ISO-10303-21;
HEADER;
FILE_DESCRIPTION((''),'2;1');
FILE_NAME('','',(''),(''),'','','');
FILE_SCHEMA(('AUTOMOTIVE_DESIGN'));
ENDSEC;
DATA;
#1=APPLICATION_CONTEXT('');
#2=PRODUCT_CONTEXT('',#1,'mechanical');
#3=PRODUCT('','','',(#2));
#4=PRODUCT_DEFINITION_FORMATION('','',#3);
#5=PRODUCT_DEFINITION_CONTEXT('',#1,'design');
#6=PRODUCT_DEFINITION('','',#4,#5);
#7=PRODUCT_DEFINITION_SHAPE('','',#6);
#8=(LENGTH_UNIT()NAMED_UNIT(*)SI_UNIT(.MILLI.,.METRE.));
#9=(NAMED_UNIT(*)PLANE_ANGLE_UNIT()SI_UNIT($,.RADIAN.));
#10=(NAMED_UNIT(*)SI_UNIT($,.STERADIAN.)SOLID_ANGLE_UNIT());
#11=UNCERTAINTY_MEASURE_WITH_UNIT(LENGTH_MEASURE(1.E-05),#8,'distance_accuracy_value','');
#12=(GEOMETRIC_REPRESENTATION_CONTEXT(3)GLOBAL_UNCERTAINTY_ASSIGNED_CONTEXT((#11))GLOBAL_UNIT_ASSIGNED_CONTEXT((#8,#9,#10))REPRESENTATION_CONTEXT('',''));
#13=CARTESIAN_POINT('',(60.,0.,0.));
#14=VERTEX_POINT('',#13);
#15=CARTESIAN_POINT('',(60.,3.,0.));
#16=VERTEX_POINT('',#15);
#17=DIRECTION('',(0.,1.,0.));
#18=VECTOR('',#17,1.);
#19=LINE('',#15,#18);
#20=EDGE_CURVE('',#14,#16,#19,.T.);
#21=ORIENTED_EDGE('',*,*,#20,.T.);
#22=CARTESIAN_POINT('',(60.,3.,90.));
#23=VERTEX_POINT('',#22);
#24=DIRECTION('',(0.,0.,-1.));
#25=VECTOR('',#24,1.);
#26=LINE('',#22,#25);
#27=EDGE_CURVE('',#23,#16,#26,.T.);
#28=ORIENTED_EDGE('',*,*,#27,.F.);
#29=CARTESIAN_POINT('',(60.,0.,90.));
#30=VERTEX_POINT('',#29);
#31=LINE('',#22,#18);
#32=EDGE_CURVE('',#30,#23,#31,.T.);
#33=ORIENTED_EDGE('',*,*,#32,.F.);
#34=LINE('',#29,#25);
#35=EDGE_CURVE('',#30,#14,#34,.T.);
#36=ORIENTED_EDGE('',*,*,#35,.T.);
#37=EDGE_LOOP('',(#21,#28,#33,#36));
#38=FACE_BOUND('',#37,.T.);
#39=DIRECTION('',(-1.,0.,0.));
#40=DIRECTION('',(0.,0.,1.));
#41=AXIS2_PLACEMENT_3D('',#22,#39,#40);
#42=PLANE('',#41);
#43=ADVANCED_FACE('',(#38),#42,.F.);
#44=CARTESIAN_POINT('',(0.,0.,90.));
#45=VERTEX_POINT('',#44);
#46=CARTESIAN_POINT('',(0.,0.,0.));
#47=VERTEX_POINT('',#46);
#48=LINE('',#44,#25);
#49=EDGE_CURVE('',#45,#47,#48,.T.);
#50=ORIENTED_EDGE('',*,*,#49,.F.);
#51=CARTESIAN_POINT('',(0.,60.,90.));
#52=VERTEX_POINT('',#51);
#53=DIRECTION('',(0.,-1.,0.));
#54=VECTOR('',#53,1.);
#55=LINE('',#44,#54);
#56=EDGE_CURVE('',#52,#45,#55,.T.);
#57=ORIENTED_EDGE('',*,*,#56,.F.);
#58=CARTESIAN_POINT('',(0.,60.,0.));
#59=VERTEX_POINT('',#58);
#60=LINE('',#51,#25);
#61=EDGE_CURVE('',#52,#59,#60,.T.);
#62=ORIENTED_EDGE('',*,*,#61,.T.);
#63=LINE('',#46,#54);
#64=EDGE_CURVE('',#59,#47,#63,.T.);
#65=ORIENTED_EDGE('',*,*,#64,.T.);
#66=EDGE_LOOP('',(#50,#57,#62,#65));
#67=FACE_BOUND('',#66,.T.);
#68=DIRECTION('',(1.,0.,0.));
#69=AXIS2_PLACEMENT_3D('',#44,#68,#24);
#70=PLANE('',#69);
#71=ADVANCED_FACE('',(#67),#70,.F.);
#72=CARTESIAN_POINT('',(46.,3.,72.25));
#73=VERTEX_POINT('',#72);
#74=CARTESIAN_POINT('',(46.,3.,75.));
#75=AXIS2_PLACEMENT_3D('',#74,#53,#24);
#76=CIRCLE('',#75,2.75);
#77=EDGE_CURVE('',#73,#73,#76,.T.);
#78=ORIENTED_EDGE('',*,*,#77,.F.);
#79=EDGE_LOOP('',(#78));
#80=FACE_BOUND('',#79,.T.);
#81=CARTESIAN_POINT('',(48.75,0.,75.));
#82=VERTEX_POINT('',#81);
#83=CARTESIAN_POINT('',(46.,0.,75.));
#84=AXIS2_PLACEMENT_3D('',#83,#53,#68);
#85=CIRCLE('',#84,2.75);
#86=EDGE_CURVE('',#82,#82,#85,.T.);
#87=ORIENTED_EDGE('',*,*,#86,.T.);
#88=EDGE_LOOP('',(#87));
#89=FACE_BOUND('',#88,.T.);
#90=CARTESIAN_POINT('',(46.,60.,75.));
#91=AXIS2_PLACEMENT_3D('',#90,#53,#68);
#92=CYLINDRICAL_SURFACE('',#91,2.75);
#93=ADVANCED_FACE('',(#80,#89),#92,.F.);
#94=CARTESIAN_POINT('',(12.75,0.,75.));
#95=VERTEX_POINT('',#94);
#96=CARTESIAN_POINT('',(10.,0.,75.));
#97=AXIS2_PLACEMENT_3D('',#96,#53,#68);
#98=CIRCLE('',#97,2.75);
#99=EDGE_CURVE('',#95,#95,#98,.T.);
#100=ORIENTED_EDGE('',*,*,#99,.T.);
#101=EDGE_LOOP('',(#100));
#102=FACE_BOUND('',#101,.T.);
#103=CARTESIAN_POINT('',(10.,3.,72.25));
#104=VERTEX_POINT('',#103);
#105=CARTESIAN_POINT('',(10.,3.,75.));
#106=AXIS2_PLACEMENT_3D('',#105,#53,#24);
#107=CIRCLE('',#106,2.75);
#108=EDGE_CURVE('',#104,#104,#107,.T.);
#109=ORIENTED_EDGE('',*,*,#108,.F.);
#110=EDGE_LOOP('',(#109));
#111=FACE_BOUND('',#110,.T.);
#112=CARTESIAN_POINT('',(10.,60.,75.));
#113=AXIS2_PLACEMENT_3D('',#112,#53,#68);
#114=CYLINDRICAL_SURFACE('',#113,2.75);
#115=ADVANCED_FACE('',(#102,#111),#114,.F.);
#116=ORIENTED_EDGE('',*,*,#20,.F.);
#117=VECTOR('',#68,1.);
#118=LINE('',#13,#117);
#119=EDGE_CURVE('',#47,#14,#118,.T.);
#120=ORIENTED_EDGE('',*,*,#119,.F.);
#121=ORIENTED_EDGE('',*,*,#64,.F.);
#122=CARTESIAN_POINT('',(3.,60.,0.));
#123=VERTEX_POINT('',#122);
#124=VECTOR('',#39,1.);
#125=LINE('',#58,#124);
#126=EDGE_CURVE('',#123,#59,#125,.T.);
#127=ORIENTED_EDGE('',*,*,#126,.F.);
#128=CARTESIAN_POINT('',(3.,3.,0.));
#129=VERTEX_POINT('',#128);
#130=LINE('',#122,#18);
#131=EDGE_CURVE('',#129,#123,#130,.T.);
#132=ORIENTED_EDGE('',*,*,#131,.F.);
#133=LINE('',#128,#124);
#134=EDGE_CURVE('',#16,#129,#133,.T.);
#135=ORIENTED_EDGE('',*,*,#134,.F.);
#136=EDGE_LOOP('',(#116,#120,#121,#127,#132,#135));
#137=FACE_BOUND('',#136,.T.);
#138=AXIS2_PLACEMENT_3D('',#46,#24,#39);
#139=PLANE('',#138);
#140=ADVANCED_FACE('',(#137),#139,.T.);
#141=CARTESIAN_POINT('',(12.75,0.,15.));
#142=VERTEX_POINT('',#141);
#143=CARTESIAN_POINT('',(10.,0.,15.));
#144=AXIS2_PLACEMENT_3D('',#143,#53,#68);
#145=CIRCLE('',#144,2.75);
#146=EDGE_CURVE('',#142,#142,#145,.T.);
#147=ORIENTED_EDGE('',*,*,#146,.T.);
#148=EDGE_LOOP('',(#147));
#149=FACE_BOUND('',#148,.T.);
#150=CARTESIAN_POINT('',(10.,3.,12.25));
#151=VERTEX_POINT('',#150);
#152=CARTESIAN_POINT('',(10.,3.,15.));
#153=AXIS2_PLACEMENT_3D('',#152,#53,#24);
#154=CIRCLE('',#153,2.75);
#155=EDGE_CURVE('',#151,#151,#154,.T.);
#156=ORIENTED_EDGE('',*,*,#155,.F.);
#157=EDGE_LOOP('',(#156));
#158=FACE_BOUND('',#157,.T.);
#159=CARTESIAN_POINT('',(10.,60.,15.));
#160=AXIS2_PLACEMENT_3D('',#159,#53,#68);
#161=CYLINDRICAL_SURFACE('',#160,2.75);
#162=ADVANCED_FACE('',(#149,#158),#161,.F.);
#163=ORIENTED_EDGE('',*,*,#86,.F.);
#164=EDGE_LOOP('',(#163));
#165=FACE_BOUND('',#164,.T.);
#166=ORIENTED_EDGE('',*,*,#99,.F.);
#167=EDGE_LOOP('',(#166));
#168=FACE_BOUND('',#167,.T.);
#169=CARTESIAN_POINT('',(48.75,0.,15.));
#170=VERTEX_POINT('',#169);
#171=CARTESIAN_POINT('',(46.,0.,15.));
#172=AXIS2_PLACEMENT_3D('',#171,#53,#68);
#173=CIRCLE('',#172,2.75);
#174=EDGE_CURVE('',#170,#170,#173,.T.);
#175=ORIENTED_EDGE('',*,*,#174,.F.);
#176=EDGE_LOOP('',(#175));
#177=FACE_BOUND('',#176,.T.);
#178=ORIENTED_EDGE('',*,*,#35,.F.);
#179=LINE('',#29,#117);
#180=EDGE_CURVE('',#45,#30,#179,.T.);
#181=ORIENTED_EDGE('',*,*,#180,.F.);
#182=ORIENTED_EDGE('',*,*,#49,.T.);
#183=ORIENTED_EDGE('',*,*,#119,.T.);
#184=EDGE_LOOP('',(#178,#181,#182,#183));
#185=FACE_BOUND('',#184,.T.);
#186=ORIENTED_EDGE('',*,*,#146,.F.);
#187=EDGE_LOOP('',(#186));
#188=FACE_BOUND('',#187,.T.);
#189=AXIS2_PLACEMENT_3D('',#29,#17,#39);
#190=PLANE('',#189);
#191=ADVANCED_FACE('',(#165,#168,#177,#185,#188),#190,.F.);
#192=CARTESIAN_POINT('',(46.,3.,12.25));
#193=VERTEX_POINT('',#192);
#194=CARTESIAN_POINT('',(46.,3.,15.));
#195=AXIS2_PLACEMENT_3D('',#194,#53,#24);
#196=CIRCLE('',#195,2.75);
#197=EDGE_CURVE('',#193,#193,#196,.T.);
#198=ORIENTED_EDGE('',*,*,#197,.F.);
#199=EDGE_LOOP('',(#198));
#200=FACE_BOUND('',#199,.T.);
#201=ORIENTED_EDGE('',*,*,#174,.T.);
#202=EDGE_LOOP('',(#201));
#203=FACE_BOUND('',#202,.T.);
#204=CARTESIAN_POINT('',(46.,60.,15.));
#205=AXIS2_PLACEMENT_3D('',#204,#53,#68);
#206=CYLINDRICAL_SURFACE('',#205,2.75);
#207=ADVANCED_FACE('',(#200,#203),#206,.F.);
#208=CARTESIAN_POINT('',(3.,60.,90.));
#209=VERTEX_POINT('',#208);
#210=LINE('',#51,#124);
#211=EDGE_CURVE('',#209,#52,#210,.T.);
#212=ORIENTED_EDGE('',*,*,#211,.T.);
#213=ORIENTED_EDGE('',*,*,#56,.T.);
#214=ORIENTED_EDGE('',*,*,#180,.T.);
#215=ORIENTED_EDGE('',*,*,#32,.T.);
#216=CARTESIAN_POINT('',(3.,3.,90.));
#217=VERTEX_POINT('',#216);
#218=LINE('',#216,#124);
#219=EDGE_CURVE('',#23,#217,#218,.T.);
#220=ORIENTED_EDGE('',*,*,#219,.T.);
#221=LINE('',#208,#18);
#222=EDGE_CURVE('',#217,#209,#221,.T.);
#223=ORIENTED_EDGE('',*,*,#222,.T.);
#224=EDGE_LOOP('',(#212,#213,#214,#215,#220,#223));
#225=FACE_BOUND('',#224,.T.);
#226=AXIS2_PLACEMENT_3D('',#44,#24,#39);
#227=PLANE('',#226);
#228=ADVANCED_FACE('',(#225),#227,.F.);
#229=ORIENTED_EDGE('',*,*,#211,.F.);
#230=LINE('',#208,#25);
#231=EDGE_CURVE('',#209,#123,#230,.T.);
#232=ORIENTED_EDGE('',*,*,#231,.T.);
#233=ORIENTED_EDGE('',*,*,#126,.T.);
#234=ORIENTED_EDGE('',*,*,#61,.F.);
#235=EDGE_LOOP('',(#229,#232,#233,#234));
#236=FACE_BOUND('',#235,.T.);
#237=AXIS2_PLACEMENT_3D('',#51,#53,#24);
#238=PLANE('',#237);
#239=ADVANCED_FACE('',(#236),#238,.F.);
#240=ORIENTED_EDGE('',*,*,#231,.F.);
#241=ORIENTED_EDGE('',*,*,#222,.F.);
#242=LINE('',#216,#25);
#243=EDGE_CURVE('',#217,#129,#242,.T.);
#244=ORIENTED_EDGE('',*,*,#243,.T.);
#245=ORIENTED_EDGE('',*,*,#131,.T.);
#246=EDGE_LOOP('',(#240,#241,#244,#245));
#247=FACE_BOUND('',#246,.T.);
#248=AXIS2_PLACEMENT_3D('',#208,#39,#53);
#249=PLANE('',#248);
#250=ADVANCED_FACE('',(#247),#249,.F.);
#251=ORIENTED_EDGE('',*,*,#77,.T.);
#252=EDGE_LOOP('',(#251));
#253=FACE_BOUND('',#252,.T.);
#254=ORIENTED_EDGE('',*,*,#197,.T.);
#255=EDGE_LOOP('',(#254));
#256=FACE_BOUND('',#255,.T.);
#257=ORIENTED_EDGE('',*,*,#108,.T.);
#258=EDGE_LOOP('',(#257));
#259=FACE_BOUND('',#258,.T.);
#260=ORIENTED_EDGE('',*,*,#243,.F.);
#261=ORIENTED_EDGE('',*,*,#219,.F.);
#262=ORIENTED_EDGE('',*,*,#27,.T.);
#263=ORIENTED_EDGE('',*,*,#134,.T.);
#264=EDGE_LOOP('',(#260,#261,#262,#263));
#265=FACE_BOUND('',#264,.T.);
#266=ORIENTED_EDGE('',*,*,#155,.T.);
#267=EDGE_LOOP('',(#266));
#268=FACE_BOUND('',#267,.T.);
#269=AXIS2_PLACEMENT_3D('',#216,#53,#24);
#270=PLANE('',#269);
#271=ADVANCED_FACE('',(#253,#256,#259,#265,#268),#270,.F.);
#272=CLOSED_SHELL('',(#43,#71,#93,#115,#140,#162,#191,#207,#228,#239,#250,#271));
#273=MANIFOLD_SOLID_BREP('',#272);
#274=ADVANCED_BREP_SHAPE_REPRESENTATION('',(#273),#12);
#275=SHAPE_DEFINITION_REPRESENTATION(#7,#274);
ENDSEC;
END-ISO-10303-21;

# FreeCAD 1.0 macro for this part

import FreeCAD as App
import Part
import Sketcher

V = App.Vector
Q = App.Units.Quantity


def add_polygon(sketch, points):
    """Adds a closed chain of lines whose ends are joined by coincident constraints."""
    first, n = sketch.GeometryCount, len(points)
    for a, b in zip(points, points[1:] + points[:1]):
        sketch.addGeometry(Part.LineSegment(App.Vector(*a, 0), App.Vector(*b, 0)), False)
    for i in range(n):
        sketch.addConstraint(Sketcher.Constraint("Coincident", first + i, 2, first + (i + 1) % n, 1))

doc = App.newDocument("Part")
params = doc.addObject("Spreadsheet::Sheet", "Params")
for row, (alias, value) in enumerate([
    ("sketch1_width", "60 mm"),
    ("sketch1_width2", "57 mm"),
    ("pad1_length", "90 mm"),
    ("sketch2_diameter", "5.5 mm"),
], start=1):
    params.set(f"A{row}", alias)
    params.set(f"B{row}", "=" + value)
    params.setAlias(f"B{row}", alias)

body = doc.addObject("PartDesign::Body", "Body")

sketch1 = body.newObject("Sketcher::SketchObject", "Sketch")
sketch1.AttachmentSupport = (doc.getObject("XY_Plane"), [""])
sketch1.MapMode = "FlatFace"
add_polygon(sketch1, [(0, 60), (0, 0), (60, 0), (60, 3), (3, 3), (3, 60)])
sketch1.addConstraint([
    Sketcher.Constraint("Vertical", 0),
    Sketcher.Constraint("Horizontal", 1),
    Sketcher.Constraint("Vertical", 2),
    Sketcher.Constraint("Horizontal", 3),
    Sketcher.Constraint("Vertical", 4),
    Sketcher.Constraint("Horizontal", 5),
    Sketcher.Constraint("Coincident", 0, 2, -1, 1),
    Sketcher.Constraint("Equal", 1, 0),
    Sketcher.Constraint("Equal", 5, 2),
    Sketcher.Constraint("DistanceX", 1, 1, 1, 2, Q("60 mm")),
    Sketcher.Constraint("DistanceX", 3, 2, 3, 1, Q("57 mm")),
])
sketch1.setExpression("Constraints[15]", "Params.sketch1_width")
sketch1.setExpression("Constraints[16]", "Params.sketch1_width2")
pad1 = body.newObject("PartDesign::Pad", "Pad")
pad1.Profile = sketch1
pad1.setExpression("Length", "Params.pad1_length")

sketch2 = body.newObject("Sketcher::SketchObject", "Sketch001")
sketch2.AttachmentSupport = (doc.getObject("XZ_Plane"), [""])
sketch2.MapMode = "FlatFace"
sketch2.addGeometry([
    Part.Circle(V(10, 75, 0), V(0, 0, 1), 2.8),
    Part.Circle(V(46, 75, 0), V(0, 0, 1), 2.8),
    Part.Circle(V(46, 15, 0), V(0, 0, 1), 2.8),
    Part.Circle(V(10, 15, 0), V(0, 0, 1), 2.8),
], False)
sketch2.addConstraint([
    Sketcher.Constraint("Equal", 0, 1),
    Sketcher.Constraint("Equal", 1, 2),
    Sketcher.Constraint("Equal", 2, 3),
    Sketcher.Constraint("Horizontal", 0, 3, 1, 3),
    Sketcher.Constraint("Horizontal", 2, 3, 3, 3),
    Sketcher.Constraint("Vertical", 1, 3, 2, 3),
    Sketcher.Constraint("Vertical", 0, 3, 3, 3),
    Sketcher.Constraint("Diameter", 0, Q("5.5 mm")),
    Sketcher.Constraint("DistanceX", -1, 1, 0, 3, Q("10 mm")),
    Sketcher.Constraint("DistanceY", -1, 1, 0, 3, Q("75 mm")),
    Sketcher.Constraint("DistanceX", -1, 1, 1, 3, Q("46 mm")),
    Sketcher.Constraint("DistanceY", -1, 1, 2, 3, Q("15 mm")),
])
sketch2.setExpression("Constraints[7]", "Params.sketch2_diameter")
pocket1 = body.newObject("PartDesign::Pocket", "Pocket")
pocket1.Profile = sketch2
pocket1.Type = "ThroughAll"

doc.recompute()
